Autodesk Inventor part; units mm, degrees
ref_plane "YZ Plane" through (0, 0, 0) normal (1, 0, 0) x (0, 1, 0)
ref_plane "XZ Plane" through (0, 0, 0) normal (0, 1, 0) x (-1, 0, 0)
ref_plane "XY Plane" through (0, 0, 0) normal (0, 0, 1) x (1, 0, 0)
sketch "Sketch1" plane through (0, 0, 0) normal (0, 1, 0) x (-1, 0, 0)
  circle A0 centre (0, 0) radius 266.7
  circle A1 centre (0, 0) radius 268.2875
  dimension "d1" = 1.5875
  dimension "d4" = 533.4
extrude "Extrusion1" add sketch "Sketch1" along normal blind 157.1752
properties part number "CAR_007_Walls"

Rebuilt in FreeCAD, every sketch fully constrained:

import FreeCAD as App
import Part
import Sketcher

V = App.Vector
Q = App.Units.Quantity

doc = App.newDocument("Part")
body = doc.addObject("PartDesign::Body", "Body")

# Sketch on XZ plane
sketch1 = body.newObject("Sketcher::SketchObject", "Sketch")
sketch1.AttachmentSupport = (doc.getObject("XZ_Plane"), [""])
sketch1.MapMode = "FlatFace"
sketch1.addGeometry([
    Part.Circle(V(0, 0, 0), V(0, 0, 1), 268),
    Part.Circle(V(0, 0, 0), V(0, 0, 1), 267),
], False)
sketch1.addConstraint([
    Sketcher.Constraint("Coincident", 0, 3, -1, 1),
    Sketcher.Constraint("Coincident", 1, 3, -1, 1),
    Sketcher.Constraint("Diameter", 1, Q("21 in")),
    Sketcher.Constraint("Diameter", 0, Q("21.125 in")),
])
pad1 = body.newObject("PartDesign::Pad", "Pad")
pad1.Profile = sketch1
pad1.Length = Q("6.188 in")
pad1.Reversed = True

doc.recompute()
